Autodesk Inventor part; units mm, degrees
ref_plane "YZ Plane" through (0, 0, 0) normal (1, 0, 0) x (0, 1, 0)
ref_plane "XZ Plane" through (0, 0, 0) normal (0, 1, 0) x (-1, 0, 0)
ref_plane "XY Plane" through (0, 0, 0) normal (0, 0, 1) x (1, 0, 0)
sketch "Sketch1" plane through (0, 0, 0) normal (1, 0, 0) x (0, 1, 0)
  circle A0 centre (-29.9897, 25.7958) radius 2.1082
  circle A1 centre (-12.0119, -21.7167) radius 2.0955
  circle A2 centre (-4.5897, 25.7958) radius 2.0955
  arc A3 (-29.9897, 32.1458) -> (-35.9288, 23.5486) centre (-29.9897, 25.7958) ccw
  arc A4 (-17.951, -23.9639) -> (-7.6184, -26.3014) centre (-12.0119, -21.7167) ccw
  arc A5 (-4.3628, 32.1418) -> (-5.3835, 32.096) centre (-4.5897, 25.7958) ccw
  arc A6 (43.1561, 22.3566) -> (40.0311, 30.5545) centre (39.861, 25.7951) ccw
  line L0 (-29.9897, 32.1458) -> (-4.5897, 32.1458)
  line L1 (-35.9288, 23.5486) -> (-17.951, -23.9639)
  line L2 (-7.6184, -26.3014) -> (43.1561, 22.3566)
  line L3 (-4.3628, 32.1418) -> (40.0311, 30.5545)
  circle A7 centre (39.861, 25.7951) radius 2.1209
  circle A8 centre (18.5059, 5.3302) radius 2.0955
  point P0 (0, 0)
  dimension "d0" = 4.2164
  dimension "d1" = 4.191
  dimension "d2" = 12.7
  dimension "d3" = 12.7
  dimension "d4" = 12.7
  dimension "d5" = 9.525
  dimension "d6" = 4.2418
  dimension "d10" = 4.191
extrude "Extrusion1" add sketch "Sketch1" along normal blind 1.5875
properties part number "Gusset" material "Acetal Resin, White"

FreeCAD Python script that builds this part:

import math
import FreeCAD as App
import Part
import Sketcher
from FreeCAD import Vector
Q = App.Units.Quantity

doc = App.newDocument("Part")
body = doc.addObject("PartDesign::Body", "Body")

sketch1 = body.newObject("Sketcher::SketchObject", "Sketch")
sketch1.AttachmentSupport = (doc.getObject("YZ_Plane"), [""])
sketch1.MapMode = "FlatFace"
sketch1.addGeometry(Part.LineSegment(Vector(-4.5897, 32.1458, 0), Vector(-29.9897, 32.1458, 0)), False)
sketch1.addGeometry(Part.ArcOfCircle(Part.Circle(Vector(-29.9897, 25.7958, 0), Vector(0, 0, 1), 6.35), math.radians(90), math.radians(200.725331)), False)
sketch1.addGeometry(Part.LineSegment(Vector(-35.9288, 23.5486, 0), Vector(-17.951, -23.9639, 0)), False)
sketch1.addGeometry(Part.ArcOfCircle(Part.Circle(Vector(-12.0119, -21.7167, 0), Vector(0, 0, 1), 6.350025), math.radians(-159.274669), math.radians(-46.219988)), False)
sketch1.addGeometry(Part.LineSegment(Vector(-7.6184, -26.3014, 0), Vector(43.1561, 22.3566, 0)), False)
sketch1.addGeometry(Part.ArcOfCircle(Part.Circle(Vector(39.861, 25.7951, 0), Vector(0, 0, 1), 4.762454), math.radians(-46.219997), math.radians(87.953132)), False)
sketch1.addGeometry(Part.LineSegment(Vector(40.0311, 30.5545, 0), Vector(-4.3628, 32.1418, 0)), False)
sketch1.addGeometry(Part.ArcOfCircle(Part.Circle(Vector(-4.589731, 25.802614, 0), Vector(0, 0, 1), 6.343247), math.radians(87.949795), math.radians(89.999721)), False)
sketch1.addGeometry(Part.Circle(Vector(-12.0119, -21.7167, 0), Vector(0, 0, 1), 2.0955), False)
sketch1.addGeometry(Part.Circle(Vector(-29.9897, 25.7958, 0), Vector(0, 0, 1), 2.1082), False)
sketch1.addGeometry(Part.Circle(Vector(-4.5897, 25.7958, 0), Vector(0, 0, 1), 2.0955), False)
sketch1.addGeometry(Part.Circle(Vector(18.5059, 5.3302, 0), Vector(0, 0, 1), 2.0955), False)
sketch1.addGeometry(Part.Circle(Vector(39.861, 25.7951, 0), Vector(0, 0, 1), 2.1209), False)
sketch1.addConstraint(Sketcher.Constraint("Tangent", 0, 2, 1, 1))
sketch1.addConstraint(Sketcher.Constraint("Tangent", 1, 2, 2, 1))
sketch1.addConstraint(Sketcher.Constraint("Tangent", 2, 2, 3, 1))
sketch1.addConstraint(Sketcher.Constraint("Tangent", 3, 2, 4, 1))
sketch1.addConstraint(Sketcher.Constraint("Tangent", 4, 2, 5, 1))
sketch1.addConstraint(Sketcher.Constraint("Tangent", 5, 2, 6, 1))
sketch1.addConstraint(Sketcher.Constraint("Tangent", 6, 2, 7, 1))
sketch1.addConstraint(Sketcher.Constraint("Tangent", 7, 2, 0, 1))
sketch1.addConstraint(Sketcher.Constraint("Horizontal", 0))
sketch1.addConstraint(Sketcher.Constraint("Coincident", 8, 3, 3, 3))
sketch1.addConstraint(Sketcher.Constraint("Coincident", 9, 3, 1, 3))
sketch1.addConstraint(Sketcher.Constraint("Coincident", 12, 3, 5, 3))
sketch1.addConstraint(Sketcher.Constraint("Equal", 1, 3))
sketch1.addConstraint(Sketcher.Constraint("Equal", 8, 10))
sketch1.addConstraint(Sketcher.Constraint("Equal", 10, 11))
sketch1.addConstraint(Sketcher.Constraint("Horizontal", 9, 3, 10, 3))
sketch1.addConstraint(Sketcher.Constraint("Vertical", 7, 3, 10, 3))
sketch1.addConstraint(Sketcher.Constraint("Radius", 1, Q("0.25 in")))
sketch1.addConstraint(Sketcher.Constraint("Diameter", 8, Q("0.165 in")))
sketch1.addConstraint(Sketcher.Constraint("Diameter", 9, Q("0.166 in")))
sketch1.addConstraint(Sketcher.Constraint("Diameter", 12, Q("0.167 in")))
sketch1.addConstraint(Sketcher.Constraint("Radius", 5, Q("0.1875 in")))
sketch1.addConstraint(Sketcher.Constraint("DistanceX", 0, 2, 0, 1, Q("1 in")))
sketch1.addConstraint(Sketcher.Constraint("Distance", 2, Q("2 in")))
sketch1.addConstraint(Sketcher.Constraint("Angle", 4, Q("43.7806 deg")))
sketch1.addConstraint(Sketcher.Constraint("Radius", 7, 6.3432))
sketch1.addConstraint(Sketcher.Constraint("DistanceY", 3, 3, -1, 1, Q("0.855 in")))
sketch1.addConstraint(Sketcher.Constraint("DistanceY", 11, 3, 7, 3, Q("0.806 in")))
sketch1.addConstraint(Sketcher.Constraint("Distance", 6, Q("1.7489 in")))
sketch1.addConstraint(Sketcher.Constraint("DistanceX", 1, 3, -1, 1, Q("1.1807 in")))
sketch1.addConstraint(Sketcher.Constraint("DistanceX", 3, 3, -1, 1, Q("0.4729 in")))
sketch1.addConstraint(Sketcher.Constraint("DistanceX", 3, 3, 11, 3, Q("1.2015 in")))
pad1 = body.newObject("PartDesign::Pad", "Pad")
pad1.Profile = sketch1
pad1.Length = Q("0.0625 in")

doc.recompute()
